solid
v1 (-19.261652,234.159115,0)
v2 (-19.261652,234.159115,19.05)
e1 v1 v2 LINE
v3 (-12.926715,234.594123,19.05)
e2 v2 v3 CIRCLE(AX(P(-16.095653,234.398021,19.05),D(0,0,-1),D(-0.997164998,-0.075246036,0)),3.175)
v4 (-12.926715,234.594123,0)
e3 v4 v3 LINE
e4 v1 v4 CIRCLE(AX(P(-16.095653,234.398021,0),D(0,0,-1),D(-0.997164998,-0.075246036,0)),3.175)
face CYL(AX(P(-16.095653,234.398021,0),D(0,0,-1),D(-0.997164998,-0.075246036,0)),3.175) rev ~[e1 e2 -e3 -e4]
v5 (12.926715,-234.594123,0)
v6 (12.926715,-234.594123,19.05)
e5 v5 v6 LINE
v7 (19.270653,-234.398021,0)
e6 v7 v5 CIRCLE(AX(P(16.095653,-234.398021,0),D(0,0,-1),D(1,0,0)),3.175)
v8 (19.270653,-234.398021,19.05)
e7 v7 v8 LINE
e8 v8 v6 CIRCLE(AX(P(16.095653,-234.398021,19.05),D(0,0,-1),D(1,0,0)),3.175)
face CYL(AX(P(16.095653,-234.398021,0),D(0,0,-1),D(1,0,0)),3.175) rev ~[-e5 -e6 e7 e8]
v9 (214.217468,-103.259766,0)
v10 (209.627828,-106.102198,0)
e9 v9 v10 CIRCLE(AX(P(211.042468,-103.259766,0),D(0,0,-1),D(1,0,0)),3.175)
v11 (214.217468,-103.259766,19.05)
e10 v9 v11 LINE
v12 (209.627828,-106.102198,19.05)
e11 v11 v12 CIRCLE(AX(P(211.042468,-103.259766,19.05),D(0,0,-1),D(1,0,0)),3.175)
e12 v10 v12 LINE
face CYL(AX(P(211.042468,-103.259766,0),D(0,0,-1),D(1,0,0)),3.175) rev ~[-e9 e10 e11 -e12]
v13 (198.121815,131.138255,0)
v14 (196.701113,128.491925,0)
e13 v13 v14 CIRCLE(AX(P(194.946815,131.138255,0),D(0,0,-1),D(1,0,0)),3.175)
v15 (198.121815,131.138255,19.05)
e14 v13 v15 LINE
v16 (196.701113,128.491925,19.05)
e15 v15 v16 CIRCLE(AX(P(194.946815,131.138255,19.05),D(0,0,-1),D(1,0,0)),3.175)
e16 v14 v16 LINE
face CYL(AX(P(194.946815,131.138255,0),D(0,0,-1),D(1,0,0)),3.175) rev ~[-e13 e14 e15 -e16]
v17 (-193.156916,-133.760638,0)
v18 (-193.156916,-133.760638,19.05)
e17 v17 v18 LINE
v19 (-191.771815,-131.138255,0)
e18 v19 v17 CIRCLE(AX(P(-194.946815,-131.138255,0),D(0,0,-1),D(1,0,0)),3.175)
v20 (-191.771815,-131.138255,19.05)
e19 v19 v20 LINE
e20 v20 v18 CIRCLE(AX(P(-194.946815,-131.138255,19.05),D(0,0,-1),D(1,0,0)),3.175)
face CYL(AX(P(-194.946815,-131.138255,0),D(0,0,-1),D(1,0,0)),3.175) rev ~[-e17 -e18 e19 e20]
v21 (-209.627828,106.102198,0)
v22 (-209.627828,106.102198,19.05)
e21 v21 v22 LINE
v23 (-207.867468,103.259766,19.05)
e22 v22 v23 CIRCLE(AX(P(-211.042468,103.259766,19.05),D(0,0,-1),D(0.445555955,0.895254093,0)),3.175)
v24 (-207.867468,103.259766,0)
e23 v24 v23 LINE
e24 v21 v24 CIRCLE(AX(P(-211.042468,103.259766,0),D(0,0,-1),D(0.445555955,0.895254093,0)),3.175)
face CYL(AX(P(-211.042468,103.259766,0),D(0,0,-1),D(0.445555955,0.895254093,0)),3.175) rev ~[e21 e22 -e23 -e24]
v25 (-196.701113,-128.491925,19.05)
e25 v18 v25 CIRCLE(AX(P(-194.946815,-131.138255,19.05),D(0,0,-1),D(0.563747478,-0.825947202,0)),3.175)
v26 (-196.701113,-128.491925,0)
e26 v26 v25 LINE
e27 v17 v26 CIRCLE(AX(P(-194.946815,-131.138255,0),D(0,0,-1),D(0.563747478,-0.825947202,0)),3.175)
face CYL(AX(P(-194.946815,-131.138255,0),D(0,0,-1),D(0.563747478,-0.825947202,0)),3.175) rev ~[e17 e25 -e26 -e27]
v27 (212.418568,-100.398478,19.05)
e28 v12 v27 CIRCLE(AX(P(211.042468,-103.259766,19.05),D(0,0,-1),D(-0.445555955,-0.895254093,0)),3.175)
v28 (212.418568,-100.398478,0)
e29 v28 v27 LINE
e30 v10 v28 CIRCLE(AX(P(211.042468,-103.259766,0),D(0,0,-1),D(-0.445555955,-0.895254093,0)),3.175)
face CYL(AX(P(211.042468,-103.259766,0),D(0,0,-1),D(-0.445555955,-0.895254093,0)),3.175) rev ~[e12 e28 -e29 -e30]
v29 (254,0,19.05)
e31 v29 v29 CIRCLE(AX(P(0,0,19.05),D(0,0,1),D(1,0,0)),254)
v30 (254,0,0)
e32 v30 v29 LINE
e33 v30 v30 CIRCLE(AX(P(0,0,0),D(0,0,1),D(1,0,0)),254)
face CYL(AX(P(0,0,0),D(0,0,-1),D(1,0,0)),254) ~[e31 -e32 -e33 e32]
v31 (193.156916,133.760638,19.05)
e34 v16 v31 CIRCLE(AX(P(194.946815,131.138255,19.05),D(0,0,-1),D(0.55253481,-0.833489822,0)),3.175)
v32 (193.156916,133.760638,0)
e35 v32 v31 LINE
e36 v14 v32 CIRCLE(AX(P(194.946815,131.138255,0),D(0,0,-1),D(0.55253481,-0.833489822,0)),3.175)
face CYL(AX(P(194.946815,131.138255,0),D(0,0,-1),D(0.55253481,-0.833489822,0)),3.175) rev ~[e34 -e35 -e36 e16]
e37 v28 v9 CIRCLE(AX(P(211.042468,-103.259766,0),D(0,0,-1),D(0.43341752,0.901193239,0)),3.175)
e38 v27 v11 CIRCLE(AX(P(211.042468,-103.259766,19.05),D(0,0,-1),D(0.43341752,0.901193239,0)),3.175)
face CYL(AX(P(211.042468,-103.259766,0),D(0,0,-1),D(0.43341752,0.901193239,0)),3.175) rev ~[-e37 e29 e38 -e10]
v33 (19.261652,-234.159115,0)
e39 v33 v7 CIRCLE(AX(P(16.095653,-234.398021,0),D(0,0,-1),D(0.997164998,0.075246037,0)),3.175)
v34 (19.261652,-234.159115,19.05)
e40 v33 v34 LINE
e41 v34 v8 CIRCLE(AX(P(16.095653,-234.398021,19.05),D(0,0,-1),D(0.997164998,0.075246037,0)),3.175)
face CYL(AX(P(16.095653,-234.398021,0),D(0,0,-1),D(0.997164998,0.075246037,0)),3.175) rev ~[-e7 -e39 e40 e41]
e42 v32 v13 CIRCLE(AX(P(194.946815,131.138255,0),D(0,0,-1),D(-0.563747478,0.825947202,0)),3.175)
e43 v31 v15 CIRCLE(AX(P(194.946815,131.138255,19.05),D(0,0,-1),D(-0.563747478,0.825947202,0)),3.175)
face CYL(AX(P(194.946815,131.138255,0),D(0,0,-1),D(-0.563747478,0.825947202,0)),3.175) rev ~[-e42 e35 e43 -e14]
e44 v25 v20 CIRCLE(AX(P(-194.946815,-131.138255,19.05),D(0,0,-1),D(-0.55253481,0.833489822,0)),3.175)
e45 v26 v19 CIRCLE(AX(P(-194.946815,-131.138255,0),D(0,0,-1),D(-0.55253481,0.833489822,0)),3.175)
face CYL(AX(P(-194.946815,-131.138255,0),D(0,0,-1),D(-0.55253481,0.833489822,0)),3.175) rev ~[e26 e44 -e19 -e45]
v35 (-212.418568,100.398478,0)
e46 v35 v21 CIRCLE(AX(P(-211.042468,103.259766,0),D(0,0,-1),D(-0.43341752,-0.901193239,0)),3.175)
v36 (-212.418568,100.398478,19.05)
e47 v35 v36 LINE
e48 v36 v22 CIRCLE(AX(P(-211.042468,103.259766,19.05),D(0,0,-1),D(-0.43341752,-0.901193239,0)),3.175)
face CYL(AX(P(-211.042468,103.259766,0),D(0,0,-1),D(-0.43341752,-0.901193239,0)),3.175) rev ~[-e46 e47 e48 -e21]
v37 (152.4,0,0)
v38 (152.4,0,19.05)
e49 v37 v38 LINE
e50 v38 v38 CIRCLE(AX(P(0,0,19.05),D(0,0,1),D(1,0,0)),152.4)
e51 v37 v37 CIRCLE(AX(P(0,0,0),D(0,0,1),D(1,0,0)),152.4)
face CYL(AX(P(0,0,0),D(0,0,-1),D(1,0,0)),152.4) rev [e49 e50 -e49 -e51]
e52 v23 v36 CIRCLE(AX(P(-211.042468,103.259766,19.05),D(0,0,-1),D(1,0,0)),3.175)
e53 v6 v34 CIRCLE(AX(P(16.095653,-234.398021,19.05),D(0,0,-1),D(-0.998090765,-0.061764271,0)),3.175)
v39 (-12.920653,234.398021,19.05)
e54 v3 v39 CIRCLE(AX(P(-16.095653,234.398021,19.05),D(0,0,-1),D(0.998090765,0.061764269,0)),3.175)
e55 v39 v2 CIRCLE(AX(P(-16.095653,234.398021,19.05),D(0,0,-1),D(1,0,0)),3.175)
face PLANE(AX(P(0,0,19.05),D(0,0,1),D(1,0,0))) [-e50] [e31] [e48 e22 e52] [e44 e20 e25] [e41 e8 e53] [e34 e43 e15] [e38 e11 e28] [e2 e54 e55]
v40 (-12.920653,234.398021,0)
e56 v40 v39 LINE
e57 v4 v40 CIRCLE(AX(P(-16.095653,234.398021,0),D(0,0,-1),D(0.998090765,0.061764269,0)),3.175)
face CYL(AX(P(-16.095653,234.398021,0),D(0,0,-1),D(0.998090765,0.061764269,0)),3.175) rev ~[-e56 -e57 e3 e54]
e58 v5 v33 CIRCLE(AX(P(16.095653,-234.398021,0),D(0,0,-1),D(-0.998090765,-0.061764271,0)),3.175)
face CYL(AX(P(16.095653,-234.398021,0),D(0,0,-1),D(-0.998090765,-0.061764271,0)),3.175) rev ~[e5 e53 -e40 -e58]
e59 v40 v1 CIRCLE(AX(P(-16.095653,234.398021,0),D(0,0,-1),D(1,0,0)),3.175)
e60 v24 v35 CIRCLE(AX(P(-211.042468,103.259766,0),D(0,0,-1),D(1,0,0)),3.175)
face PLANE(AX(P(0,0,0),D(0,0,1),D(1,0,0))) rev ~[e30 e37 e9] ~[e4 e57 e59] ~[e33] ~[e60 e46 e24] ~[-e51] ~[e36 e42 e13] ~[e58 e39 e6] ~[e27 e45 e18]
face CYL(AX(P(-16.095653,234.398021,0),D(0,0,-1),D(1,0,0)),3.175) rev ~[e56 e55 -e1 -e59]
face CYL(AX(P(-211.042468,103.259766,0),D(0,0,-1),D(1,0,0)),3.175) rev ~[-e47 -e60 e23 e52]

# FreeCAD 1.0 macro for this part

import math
import FreeCAD as App
import Part
import Sketcher
Q = App.Units.Quantity

doc = App.newDocument("Part")
body = doc.addObject("PartDesign::Body", "Body")

# Sketch on XY plane
sketch1 = body.newObject("Sketcher::SketchObject", "Sketch")
sketch1.AttachmentSupport = (doc.getObject("XY_Plane"), [""])
sketch1.MapMode = "FlatFace"
sketch1.addGeometry([
    Part.Circle(App.Vector(0, 0, 0), App.Vector(0, 0, 1), 254),  # 0
    Part.ArcOfCircle(Part.Circle(App.Vector(-194.95, -131.14, 0), App.Vector(0, 0, 1), 3.17), math.radians(124), math.radians(304)),  # 1
    Part.ArcOfCircle(Part.Circle(App.Vector(-194.95, -131.14, 0), App.Vector(0, 0, 1), 3.17), math.radians(0), math.radians(124)),  # 2
    Part.ArcOfCircle(Part.Circle(App.Vector(-194.95, -131.14, 0), App.Vector(0, 0, 1), 3.17), math.radians(-56), math.radians(0)),  # 3
    Part.ArcOfCircle(Part.Circle(App.Vector(16.1, -234.4, 0), App.Vector(0, 0, 1), 3.17), math.radians(-176), math.radians(0)),  # 4
    Part.ArcOfCircle(Part.Circle(App.Vector(16.1, -234.4, 0), App.Vector(0, 0, 1), 3.17), math.radians(4), math.radians(184)),  # 5
    Part.ArcOfCircle(Part.Circle(App.Vector(16.1, -234.4, 0), App.Vector(0, 0, 1), 3.17), math.radians(0), math.radians(4.32)),  # 6
    Part.Circle(App.Vector(0, 0, 0), App.Vector(0, 0, 1), 152.4),  # 7
    Part.ArcOfCircle(Part.Circle(App.Vector(211.04, -103.26, 0), App.Vector(0, 0, 1), 3.17), math.radians(-116), math.radians(0)),  # 8
    Part.ArcOfCircle(Part.Circle(App.Vector(211.04, -103.26, 0), App.Vector(0, 0, 1), 3.17), math.radians(64), math.radians(244)),  # 9
    Part.ArcOfCircle(Part.Circle(App.Vector(211.04, -103.26, 0), App.Vector(0, 0, 1), 3.17), math.radians(0), math.radians(64)),  # 10
    Part.ArcOfCircle(Part.Circle(App.Vector(-211.04, 103.26, 0), App.Vector(0, 0, 1), 3.17), math.radians(64), math.radians(244)),  # 11
    Part.ArcOfCircle(Part.Circle(App.Vector(-211.04, 103.26, 0), App.Vector(0, 0, 1), 3.17), math.radians(0), math.radians(64)),  # 12
    Part.ArcOfCircle(Part.Circle(App.Vector(-211.04, 103.26, 0), App.Vector(0, 0, 1), 3.17), math.radians(-116), math.radians(0)),  # 13
    Part.ArcOfCircle(Part.Circle(App.Vector(-16.1, 234.4, 0), App.Vector(0, 0, 1), 3.17), math.radians(4), math.radians(184)),  # 14
    Part.ArcOfCircle(Part.Circle(App.Vector(-16.1, 234.4, 0), App.Vector(0, 0, 1), 3.18), math.radians(0), math.radians(3.54)),  # 15
    Part.ArcOfCircle(Part.Circle(App.Vector(-16.1, 234.4, 0), App.Vector(0, 0, 1), 3.17), math.radians(-176), math.radians(0)),  # 16
    Part.ArcOfCircle(Part.Circle(App.Vector(194.95, 131.14, 0), App.Vector(0, 0, 1), 3.17), math.radians(-56), math.radians(0)),  # 17
    Part.ArcOfCircle(Part.Circle(App.Vector(194.95, 131.14, 0), App.Vector(0, 0, 1), 3.17), math.radians(124), math.radians(304)),  # 18
    Part.ArcOfCircle(Part.Circle(App.Vector(194.95, 131.14, 0), App.Vector(0, 0, 1), 3.17), math.radians(0), math.radians(124)),  # 19
], False)
sketch1.addConstraint([
    Sketcher.Constraint("Tangent", 1, 1, 2, 2),
    Sketcher.Constraint("Tangent", 2, 1, 3, 2),
    Sketcher.Constraint("Tangent", 3, 1, 1, 2),
    Sketcher.Constraint("Tangent", 4, 1, 5, 2),
    Sketcher.Constraint("Tangent", 5, 1, 6, 2),
    Sketcher.Constraint("Tangent", 6, 1, 4, 2),
    Sketcher.Constraint("Tangent", 8, 1, 9, 2),
    Sketcher.Constraint("Tangent", 9, 1, 10, 2),
    Sketcher.Constraint("Tangent", 10, 1, 8, 2),
    Sketcher.Constraint("Tangent", 11, 1, 12, 2),
    Sketcher.Constraint("Tangent", 12, 1, 13, 2),
    Sketcher.Constraint("Tangent", 13, 1, 11, 2),
    Sketcher.Constraint("Tangent", 14, 1, 15, 2),
    Sketcher.Constraint("Tangent", 15, 1, 16, 2),
    Sketcher.Constraint("Tangent", 16, 1, 14, 2),
    Sketcher.Constraint("Tangent", 17, 1, 18, 2),
    Sketcher.Constraint("Tangent", 18, 1, 19, 2),
    Sketcher.Constraint("Tangent", 19, 1, 17, 2),
    Sketcher.Constraint("Coincident", 0, 3, -1, 1),
    Sketcher.Constraint("Coincident", 7, 3, -1, 1),
    Sketcher.Constraint("Equal", 3, 4),
    Sketcher.Constraint("Equal", 6, 8),
    Sketcher.Constraint("Equal", 10, 11),
    Sketcher.Constraint("Equal", 13, 14),
    Sketcher.Constraint("Equal", 16, 17),
    Sketcher.Constraint("Symmetric", 8, 3, 11, 3, -1, 1),
    Sketcher.Constraint("Symmetric", 4, 3, 14, 3, -1, 1),
    Sketcher.Constraint("Symmetric", 1, 3, 17, 3, -1, 1),
    Sketcher.Constraint("Horizontal", 3, 3, 2, 1),
    Sketcher.Constraint("Horizontal", 5, 3, 6, 1),
    Sketcher.Constraint("Horizontal", 9, 3, 10, 1),
    Sketcher.Constraint("Horizontal", 13, 3, 12, 1),
    Sketcher.Constraint("Horizontal", 16, 3, 15, 1),
    Sketcher.Constraint("Horizontal", 18, 3, 19, 1),
    Sketcher.Constraint("Diameter", 0, Q("20 in")),
    Sketcher.Constraint("Diameter", 7, Q("12 in")),
    Sketcher.Constraint("Radius", 1, Q("0.125 in")),
    Sketcher.Constraint("DistanceX", 1, 1, 3, 3, Q("1.754298 mm")),
    Sketcher.Constraint("DistanceX", 3, 1, 2, 1, Q("1.385102 mm")),
    Sketcher.Constraint("DistanceY", 4, 1, 4, 3, Q("0.196102 mm")),
    Sketcher.Constraint("DistanceX", 6, 3, 5, 1, Q("3.165999 mm")),
    Sketcher.Constraint("DistanceX", 8, 3, 9, 1, Q("1.376101 mm")),
    Sketcher.Constraint("DistanceX", 13, 1, 11, 3, Q("1.376101 mm")),
    Sketcher.Constraint("DistanceY", 14, 3, 14, 1, Q("0.196102 mm")),
    Sketcher.Constraint("DistanceX", 16, 1, 15, 3, Q("3.165999 mm")),
    Sketcher.Constraint("DistanceX", 17, 3, 17, 1, Q("1.754298 mm")),
    Sketcher.Constraint("DistanceX", 18, 1, 17, 3, Q("1.789898 mm")),
    Sketcher.Constraint("DistanceY", 4, 3, -1, 1, Q("234.398021 mm")),
    Sketcher.Constraint("DistanceX", -1, 1, 9, 1, Q("212.418568 mm")),
    Sketcher.Constraint("DistanceY", 3, 3, 11, 3, Q("234.398021 mm")),
    Sketcher.Constraint("DistanceX", 2, 1, 4, 1, Q("204.69853 mm")),
    Sketcher.Constraint("DistanceY", 5, 1, 8, 3, Q("130.899349 mm")),
    Sketcher.Constraint("DistanceX", 8, 1, 8, 3, Q("1.41464 mm")),
    Sketcher.Constraint("DistanceX", 11, 3, 11, 1, Q("1.41464 mm")),
    Sketcher.Constraint("DistanceX", 1, 3, -1, 1, Q("194.946815 mm")),
])
pad1 = body.newObject("PartDesign::Pad", "Pad")
pad1.Profile = sketch1
pad1.Length = Q("0.75 in")

doc.recompute()
